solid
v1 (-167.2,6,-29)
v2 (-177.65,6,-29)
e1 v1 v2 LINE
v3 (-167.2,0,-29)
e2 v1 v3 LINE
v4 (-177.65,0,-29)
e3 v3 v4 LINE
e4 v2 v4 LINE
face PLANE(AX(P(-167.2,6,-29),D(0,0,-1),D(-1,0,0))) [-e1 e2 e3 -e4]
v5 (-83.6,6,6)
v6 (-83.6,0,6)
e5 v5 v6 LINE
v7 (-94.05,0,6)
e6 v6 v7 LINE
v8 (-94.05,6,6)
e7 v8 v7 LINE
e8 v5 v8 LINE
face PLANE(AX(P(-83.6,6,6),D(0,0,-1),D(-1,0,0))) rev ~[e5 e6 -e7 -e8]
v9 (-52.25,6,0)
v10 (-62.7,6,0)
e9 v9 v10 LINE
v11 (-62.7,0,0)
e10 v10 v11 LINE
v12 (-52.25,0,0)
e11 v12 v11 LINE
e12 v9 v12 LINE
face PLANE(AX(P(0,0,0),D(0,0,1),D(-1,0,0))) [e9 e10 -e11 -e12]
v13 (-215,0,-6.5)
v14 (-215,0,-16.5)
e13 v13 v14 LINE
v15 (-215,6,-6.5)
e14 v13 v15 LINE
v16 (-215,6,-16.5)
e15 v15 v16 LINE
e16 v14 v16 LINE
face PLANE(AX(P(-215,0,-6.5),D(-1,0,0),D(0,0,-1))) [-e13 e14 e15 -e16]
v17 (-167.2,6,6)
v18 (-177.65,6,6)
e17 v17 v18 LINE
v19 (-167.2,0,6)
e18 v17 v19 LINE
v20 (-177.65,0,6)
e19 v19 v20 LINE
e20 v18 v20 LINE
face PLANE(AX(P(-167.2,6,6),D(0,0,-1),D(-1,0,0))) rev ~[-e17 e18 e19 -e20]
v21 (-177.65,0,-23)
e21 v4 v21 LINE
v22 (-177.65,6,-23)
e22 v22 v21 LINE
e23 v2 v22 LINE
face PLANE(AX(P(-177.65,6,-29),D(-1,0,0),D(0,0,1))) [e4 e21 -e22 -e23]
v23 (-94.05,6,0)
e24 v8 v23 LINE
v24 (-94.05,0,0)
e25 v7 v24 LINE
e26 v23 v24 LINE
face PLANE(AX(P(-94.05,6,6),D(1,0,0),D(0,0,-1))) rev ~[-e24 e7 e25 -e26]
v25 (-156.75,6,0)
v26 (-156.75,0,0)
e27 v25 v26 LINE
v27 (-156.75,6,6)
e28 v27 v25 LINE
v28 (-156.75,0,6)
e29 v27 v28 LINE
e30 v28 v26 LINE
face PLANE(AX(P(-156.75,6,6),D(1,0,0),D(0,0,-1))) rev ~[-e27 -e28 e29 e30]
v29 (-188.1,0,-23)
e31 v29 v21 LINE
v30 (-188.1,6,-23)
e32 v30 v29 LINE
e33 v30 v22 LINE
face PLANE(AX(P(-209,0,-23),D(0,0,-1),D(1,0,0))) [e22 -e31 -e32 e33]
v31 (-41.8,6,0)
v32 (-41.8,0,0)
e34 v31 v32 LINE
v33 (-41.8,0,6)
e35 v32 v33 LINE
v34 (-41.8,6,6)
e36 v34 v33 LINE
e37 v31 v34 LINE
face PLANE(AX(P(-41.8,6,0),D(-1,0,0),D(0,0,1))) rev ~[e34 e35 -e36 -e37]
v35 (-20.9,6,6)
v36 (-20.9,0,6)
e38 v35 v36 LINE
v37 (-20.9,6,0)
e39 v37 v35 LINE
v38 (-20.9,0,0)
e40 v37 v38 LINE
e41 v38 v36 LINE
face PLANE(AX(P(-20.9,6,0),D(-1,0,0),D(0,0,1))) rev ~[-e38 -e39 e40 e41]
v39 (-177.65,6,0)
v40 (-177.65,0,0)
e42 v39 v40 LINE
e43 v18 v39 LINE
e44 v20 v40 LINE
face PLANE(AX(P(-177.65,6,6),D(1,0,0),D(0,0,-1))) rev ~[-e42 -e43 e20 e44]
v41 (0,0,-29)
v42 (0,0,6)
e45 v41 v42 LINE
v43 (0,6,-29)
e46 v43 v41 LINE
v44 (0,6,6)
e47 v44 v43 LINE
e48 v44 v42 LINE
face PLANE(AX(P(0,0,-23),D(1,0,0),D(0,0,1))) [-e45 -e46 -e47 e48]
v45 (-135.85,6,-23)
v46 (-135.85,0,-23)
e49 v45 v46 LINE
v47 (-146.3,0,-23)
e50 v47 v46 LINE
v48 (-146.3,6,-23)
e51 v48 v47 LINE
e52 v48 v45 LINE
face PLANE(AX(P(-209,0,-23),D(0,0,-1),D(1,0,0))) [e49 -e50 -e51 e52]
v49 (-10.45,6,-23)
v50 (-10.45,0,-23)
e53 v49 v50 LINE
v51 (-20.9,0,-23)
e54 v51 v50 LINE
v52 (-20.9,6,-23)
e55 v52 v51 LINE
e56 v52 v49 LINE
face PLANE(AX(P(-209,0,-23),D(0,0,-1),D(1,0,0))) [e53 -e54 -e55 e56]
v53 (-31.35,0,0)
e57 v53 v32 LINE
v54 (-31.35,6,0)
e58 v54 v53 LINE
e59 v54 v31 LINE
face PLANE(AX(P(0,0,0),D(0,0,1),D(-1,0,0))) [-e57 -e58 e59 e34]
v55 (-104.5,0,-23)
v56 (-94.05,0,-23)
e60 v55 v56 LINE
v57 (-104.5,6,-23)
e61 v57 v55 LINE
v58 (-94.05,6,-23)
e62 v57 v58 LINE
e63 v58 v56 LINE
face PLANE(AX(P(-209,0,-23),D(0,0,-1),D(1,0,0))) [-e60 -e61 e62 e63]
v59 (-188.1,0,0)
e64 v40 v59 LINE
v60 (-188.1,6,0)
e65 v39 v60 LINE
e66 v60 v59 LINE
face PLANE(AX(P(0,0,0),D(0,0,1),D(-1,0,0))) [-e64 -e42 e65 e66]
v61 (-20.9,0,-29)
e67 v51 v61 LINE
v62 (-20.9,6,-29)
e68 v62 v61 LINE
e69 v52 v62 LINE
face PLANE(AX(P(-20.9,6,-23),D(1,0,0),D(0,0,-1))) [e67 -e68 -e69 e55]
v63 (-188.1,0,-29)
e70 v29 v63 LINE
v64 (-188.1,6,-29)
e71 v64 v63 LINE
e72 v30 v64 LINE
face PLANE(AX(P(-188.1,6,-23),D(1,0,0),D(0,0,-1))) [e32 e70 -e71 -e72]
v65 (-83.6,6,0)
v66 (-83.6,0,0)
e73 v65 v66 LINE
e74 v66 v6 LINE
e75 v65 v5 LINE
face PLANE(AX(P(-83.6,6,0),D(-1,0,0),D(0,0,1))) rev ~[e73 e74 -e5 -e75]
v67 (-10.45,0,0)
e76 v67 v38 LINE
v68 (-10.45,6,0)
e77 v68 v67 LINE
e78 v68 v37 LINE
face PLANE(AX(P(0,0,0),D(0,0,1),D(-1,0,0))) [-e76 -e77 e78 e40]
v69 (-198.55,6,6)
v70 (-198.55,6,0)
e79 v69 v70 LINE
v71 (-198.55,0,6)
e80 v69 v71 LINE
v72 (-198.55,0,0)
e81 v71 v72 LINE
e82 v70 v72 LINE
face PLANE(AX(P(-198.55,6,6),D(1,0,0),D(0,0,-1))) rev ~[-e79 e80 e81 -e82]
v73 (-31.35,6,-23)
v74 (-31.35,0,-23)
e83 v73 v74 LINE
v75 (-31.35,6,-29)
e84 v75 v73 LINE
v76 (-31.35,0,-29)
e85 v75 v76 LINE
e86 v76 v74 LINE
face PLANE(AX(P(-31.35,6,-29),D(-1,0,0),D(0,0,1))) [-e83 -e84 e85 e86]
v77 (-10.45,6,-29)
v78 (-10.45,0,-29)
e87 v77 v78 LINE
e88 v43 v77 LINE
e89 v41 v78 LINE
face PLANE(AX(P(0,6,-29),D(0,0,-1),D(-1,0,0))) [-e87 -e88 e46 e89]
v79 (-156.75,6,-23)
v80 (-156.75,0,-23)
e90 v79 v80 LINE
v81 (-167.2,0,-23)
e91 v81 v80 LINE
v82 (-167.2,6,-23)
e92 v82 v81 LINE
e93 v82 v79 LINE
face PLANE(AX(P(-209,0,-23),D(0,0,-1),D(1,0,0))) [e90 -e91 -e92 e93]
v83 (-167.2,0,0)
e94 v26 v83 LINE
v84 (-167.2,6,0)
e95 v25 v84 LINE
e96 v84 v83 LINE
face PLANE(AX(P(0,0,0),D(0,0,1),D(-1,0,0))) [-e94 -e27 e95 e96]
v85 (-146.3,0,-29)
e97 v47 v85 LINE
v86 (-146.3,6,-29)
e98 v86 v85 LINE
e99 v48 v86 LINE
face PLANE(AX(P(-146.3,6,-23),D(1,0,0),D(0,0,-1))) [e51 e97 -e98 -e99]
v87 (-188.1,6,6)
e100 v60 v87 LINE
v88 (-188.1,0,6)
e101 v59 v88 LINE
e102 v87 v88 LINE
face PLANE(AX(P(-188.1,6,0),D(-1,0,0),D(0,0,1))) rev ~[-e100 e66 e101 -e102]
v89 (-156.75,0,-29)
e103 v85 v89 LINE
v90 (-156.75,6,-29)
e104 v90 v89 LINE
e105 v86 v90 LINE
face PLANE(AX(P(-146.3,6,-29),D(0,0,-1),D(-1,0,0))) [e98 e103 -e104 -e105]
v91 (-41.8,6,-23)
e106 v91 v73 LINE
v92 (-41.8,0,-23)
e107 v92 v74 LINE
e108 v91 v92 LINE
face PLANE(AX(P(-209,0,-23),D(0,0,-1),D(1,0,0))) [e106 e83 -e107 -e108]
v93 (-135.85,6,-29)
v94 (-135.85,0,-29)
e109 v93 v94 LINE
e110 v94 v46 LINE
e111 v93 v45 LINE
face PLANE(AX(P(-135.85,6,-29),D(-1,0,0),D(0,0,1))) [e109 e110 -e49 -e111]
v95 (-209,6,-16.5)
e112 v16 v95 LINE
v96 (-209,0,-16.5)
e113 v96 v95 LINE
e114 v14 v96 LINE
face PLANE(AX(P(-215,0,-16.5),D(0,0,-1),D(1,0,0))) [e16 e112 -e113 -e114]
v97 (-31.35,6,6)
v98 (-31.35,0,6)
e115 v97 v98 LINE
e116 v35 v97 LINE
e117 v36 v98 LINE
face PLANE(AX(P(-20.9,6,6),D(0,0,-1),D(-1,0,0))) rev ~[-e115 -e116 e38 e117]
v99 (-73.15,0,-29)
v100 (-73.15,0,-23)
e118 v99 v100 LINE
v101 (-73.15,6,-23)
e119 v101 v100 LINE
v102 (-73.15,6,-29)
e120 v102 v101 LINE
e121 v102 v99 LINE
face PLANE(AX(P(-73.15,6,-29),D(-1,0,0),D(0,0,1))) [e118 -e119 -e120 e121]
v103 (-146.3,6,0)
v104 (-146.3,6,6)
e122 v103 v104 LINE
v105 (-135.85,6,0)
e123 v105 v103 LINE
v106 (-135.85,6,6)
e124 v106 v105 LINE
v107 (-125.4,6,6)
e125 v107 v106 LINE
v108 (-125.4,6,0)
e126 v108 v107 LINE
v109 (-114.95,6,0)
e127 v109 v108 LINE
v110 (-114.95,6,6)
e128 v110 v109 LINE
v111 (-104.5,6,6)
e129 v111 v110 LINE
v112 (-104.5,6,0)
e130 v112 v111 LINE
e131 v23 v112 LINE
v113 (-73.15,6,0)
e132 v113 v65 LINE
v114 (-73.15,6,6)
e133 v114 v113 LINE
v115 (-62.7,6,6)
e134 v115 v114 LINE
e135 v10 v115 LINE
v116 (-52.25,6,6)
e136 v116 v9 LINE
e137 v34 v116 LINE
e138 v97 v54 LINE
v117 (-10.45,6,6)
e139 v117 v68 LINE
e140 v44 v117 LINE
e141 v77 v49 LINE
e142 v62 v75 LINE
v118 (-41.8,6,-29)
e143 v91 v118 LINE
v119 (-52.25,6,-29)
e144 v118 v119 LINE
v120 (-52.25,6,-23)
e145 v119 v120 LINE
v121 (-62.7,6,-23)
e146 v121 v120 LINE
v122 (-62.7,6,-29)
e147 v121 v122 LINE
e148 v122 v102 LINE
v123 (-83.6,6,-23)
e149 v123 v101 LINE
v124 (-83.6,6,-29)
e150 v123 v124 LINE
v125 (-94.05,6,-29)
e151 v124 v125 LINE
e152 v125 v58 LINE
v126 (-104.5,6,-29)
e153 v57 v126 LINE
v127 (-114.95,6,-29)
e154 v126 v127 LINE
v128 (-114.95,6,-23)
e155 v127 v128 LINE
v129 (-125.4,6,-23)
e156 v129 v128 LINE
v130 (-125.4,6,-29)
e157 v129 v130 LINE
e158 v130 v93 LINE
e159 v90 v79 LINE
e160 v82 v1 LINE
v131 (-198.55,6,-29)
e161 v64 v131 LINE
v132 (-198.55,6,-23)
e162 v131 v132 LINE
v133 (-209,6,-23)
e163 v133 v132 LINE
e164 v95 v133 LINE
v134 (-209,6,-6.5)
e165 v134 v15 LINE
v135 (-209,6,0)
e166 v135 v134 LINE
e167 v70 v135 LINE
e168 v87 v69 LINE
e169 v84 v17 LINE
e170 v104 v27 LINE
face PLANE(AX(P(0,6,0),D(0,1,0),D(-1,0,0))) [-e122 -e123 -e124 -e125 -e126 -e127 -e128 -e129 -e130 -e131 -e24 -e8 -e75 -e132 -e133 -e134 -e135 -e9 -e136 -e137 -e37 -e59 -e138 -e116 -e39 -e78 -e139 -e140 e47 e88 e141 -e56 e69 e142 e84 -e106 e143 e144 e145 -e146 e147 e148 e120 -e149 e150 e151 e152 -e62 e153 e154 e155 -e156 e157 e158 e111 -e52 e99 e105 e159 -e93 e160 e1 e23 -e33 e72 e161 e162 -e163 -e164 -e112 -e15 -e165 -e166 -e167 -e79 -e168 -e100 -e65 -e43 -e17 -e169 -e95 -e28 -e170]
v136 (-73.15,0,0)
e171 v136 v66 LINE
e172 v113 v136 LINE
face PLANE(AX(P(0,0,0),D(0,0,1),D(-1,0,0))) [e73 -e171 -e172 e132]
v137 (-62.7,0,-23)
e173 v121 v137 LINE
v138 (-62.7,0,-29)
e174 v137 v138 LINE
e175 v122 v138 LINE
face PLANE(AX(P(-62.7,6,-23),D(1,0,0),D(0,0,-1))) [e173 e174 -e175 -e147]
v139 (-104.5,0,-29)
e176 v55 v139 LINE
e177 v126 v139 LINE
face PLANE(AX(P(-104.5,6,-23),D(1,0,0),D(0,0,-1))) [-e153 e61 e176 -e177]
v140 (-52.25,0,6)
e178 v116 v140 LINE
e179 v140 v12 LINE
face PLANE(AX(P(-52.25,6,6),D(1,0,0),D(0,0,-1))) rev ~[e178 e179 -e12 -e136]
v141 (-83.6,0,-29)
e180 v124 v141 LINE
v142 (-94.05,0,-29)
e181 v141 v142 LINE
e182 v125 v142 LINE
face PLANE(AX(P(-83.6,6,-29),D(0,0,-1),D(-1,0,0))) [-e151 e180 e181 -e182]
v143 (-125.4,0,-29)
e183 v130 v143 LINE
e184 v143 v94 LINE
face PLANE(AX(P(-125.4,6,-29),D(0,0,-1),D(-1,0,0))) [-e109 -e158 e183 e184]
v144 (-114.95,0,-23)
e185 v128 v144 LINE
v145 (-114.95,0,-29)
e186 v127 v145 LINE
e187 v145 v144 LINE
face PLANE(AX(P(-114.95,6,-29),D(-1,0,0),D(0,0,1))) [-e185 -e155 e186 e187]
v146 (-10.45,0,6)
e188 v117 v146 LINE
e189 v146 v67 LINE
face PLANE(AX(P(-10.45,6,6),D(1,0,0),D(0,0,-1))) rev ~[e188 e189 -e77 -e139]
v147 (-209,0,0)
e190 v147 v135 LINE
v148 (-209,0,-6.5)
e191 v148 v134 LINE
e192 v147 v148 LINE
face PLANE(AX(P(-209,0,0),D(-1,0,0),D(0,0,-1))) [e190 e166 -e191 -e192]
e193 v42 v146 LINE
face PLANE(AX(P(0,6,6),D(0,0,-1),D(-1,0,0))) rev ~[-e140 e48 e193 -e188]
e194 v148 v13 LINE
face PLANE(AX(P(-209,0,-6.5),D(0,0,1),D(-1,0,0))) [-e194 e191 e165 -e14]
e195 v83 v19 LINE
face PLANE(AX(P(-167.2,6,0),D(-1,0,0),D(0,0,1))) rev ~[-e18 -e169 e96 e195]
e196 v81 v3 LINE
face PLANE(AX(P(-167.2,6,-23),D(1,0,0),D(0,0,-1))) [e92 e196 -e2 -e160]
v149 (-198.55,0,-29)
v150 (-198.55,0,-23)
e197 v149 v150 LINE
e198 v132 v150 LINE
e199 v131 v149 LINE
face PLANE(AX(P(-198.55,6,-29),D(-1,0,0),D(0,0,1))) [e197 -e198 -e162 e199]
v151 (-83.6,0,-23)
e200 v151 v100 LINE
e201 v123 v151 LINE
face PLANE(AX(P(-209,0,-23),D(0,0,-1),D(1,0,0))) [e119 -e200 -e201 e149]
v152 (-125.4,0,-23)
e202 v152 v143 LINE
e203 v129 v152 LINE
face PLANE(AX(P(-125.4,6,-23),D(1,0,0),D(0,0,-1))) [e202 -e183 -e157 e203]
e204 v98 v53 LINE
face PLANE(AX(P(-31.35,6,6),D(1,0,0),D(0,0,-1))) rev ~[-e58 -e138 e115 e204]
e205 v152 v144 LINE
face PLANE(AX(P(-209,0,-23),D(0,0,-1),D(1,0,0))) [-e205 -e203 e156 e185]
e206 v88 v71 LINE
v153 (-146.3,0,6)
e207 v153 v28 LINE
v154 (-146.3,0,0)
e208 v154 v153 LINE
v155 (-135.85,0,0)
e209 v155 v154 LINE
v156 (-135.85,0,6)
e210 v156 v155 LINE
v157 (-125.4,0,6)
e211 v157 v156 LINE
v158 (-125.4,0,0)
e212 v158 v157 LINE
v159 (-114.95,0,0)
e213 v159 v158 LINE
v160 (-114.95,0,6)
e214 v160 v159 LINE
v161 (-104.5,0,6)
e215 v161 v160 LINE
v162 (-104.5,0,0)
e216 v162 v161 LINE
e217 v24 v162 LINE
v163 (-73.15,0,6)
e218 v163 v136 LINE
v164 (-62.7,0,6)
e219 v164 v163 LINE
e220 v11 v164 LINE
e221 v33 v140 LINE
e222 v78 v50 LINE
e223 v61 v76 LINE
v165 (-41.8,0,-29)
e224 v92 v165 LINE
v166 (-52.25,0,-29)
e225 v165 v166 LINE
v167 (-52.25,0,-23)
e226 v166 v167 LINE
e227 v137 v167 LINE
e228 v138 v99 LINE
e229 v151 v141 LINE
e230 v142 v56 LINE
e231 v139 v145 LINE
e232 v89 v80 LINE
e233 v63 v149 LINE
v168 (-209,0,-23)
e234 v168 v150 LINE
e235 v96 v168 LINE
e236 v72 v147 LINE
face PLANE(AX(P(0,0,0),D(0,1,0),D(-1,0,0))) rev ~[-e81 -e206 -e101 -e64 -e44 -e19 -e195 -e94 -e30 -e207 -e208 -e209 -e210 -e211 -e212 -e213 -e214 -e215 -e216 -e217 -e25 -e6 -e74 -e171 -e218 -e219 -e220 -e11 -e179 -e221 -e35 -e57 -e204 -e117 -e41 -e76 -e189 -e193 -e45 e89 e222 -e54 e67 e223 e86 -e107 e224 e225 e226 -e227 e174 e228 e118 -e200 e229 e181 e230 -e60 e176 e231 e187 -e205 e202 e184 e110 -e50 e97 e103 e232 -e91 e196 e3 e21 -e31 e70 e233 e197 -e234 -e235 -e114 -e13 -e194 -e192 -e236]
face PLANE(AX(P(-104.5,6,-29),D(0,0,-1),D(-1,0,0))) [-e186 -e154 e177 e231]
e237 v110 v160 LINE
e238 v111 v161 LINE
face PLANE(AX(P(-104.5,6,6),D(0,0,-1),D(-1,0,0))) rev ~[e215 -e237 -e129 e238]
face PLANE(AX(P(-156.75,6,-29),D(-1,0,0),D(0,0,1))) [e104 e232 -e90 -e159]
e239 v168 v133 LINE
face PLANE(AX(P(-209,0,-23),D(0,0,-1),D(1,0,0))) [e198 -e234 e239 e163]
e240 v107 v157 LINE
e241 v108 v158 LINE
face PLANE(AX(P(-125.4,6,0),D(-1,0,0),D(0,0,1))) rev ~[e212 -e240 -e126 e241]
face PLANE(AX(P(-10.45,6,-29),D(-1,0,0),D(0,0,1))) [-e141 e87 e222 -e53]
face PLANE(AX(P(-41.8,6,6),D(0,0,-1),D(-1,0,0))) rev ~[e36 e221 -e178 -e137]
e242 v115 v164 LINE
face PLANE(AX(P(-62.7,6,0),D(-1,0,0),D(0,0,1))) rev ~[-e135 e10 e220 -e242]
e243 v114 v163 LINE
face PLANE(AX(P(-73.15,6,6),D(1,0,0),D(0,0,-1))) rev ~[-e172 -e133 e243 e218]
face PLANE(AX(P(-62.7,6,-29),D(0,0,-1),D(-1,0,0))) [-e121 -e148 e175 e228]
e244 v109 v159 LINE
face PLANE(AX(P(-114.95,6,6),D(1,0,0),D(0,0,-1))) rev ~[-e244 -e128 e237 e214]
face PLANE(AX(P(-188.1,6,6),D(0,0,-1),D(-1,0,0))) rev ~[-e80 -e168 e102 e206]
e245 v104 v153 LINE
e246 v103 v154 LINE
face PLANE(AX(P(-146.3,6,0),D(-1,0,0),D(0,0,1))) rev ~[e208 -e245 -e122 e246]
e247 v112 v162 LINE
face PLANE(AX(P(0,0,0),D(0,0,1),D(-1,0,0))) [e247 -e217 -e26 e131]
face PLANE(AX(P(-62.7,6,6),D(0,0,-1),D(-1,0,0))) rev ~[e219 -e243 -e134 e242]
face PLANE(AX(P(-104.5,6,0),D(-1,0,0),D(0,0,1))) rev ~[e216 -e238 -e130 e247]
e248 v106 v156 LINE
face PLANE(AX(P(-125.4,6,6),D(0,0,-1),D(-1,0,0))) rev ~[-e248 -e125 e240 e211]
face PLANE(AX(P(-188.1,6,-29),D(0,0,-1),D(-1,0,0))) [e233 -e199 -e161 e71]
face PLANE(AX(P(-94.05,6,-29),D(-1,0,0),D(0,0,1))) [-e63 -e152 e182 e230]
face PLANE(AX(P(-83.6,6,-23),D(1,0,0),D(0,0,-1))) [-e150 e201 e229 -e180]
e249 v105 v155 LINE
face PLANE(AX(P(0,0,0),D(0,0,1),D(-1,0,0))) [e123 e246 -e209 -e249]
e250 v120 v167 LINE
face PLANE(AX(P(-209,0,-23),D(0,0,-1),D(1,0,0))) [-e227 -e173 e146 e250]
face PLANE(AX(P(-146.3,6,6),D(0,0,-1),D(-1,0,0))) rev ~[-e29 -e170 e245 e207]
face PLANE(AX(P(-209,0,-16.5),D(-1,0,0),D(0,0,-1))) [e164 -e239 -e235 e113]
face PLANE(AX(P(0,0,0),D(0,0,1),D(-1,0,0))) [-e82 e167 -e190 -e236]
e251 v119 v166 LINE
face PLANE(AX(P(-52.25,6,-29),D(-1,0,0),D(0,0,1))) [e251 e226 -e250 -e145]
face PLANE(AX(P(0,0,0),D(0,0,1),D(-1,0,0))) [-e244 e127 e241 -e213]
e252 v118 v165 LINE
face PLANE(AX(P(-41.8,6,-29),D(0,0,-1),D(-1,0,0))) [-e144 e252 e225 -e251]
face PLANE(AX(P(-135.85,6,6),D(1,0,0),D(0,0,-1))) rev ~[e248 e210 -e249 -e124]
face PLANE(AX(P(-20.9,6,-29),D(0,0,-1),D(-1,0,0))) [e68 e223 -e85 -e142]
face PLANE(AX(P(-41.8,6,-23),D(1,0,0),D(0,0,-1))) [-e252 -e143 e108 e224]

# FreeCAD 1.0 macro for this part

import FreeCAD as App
import Part
import Sketcher

V = App.Vector
Q = App.Units.Quantity

doc = App.newDocument("Part")
body = doc.addObject("PartDesign::Body", "Body")

# Sketch on XZ plane
sketch1 = doc.addObject("Sketcher::SketchObject", "Sketch")
body.addObject(sketch1)
sketch1.AttachmentSupport = (doc.XZ_Plane, [""])
sketch1.MapMode = "FlatFace"
sketch1.addGeometry(Part.LineSegment(V(-209, 0, 0), V(0, 0, 0)), False)
sketch1.addGeometry(Part.LineSegment(V(0, 0, 0), V(0, -23, 0)), False)
sketch1.addGeometry(Part.LineSegment(V(0, -23, 0), V(-209, -23, 0)), False)
sketch1.addGeometry(Part.LineSegment(V(-209, -23, 0), V(-209, -16.5, 0)), False)
sketch1.addGeometry(Part.LineSegment(V(-209, -16.5, 0), V(-215, -16.5, 0)), False)
sketch1.addGeometry(Part.LineSegment(V(-215, -16.5, 0), V(-215, -6.5, 0)), False)
sketch1.addGeometry(Part.LineSegment(V(-215, -6.5, 0), V(-209, -6.5, 0)), False)
sketch1.addGeometry(Part.LineSegment(V(-209, -6.5, 0), V(-209, 0, 0)), False)
sketch1.addConstraint(Sketcher.Constraint("Coincident", 0, 2, 1, 1))
sketch1.addConstraint(Sketcher.Constraint("Coincident", 1, 2, 2, 1))
sketch1.addConstraint(Sketcher.Constraint("Coincident", 2, 2, 3, 1))
sketch1.addConstraint(Sketcher.Constraint("Coincident", 3, 2, 4, 1))
sketch1.addConstraint(Sketcher.Constraint("Coincident", 4, 2, 5, 1))
sketch1.addConstraint(Sketcher.Constraint("Coincident", 5, 2, 6, 1))
sketch1.addConstraint(Sketcher.Constraint("Coincident", 6, 2, 7, 1))
sketch1.addConstraint(Sketcher.Constraint("Coincident", 7, 2, 0, 1))
sketch1.addConstraint(Sketcher.Constraint("Horizontal", 0))
sketch1.addConstraint(Sketcher.Constraint("Vertical", 1))
sketch1.addConstraint(Sketcher.Constraint("Horizontal", 2))
sketch1.addConstraint(Sketcher.Constraint("Vertical", 3))
sketch1.addConstraint(Sketcher.Constraint("Horizontal", 4))
sketch1.addConstraint(Sketcher.Constraint("Vertical", 5))
sketch1.addConstraint(Sketcher.Constraint("Horizontal", 6))
sketch1.addConstraint(Sketcher.Constraint("Vertical", 7))
sketch1.addConstraint(Sketcher.Constraint("Coincident", 0, 2, -1, 1))
sketch1.addConstraint(Sketcher.Constraint("Vertical", 3, 2, 6, 2))
sketch1.addConstraint(Sketcher.Constraint("Equal", 3, 7))
sketch1.addConstraint(Sketcher.Constraint("DistanceX", 0, 1, 0, 2, Q("209 mm")))
sketch1.addConstraint(Sketcher.Constraint("DistanceX", 4, 2, 4, 1, Q("6 mm")))
sketch1.addConstraint(Sketcher.Constraint("DistanceY", 1, 2, 1, 1, Q("23 mm")))
sketch1.addConstraint(Sketcher.Constraint("DistanceY", 5, 1, 5, 2, Q("10 mm")))
pad1 = doc.addObject("PartDesign::Pad", "Pad")
body.addObject(pad1)
pad1.Profile = sketch1
pad1.Length = 6
pad1.Reversed = True

# Sketch on XZ plane
sketch2 = doc.addObject("Sketcher::SketchObject", "Sketch001")
body.addObject(sketch2)
sketch2.AttachmentSupport = (doc.XZ_Plane, [""])
sketch2.MapMode = "FlatFace"
sketch2.AttachmentOffset = App.Placement(V(0, 0, -6), App.Rotation())
sketch2.addGeometry(Part.LineSegment(V(-188.1, 0, 0), V(-198.55, 0, 0)), False)
sketch2.addGeometry(Part.LineSegment(V(-198.55, 0, 0), V(-198.55, 6, 0)), False)
sketch2.addGeometry(Part.LineSegment(V(-198.55, 6, 0), V(-188.1, 6, 0)), False)
sketch2.addGeometry(Part.LineSegment(V(-188.1, 6, 0), V(-188.1, 0, 0)), False)
sketch2.addGeometry(Part.LineSegment(V(-198.55, -23, 0), V(-188.1, -23, 0)), False)
sketch2.addGeometry(Part.LineSegment(V(-188.1, -23, 0), V(-188.1, -29, 0)), False)
sketch2.addGeometry(Part.LineSegment(V(-188.1, -29, 0), V(-198.55, -29, 0)), False)
sketch2.addGeometry(Part.LineSegment(V(-198.55, -29, 0), V(-198.55, -23, 0)), False)
sketch2.addConstraint(Sketcher.Constraint("Coincident", 0, 2, 1, 1))
sketch2.addConstraint(Sketcher.Constraint("Coincident", 1, 2, 2, 1))
sketch2.addConstraint(Sketcher.Constraint("Coincident", 2, 2, 3, 1))
sketch2.addConstraint(Sketcher.Constraint("Coincident", 3, 2, 0, 1))
sketch2.addConstraint(Sketcher.Constraint("Coincident", 4, 2, 5, 1))
sketch2.addConstraint(Sketcher.Constraint("Coincident", 5, 2, 6, 1))
sketch2.addConstraint(Sketcher.Constraint("Coincident", 6, 2, 7, 1))
sketch2.addConstraint(Sketcher.Constraint("Coincident", 7, 2, 4, 1))
sketch2.addConstraint(Sketcher.Constraint("Horizontal", 0))
sketch2.addConstraint(Sketcher.Constraint("Vertical", 1))
sketch2.addConstraint(Sketcher.Constraint("Horizontal", 2))
sketch2.addConstraint(Sketcher.Constraint("Vertical", 3))
sketch2.addConstraint(Sketcher.Constraint("Horizontal", 4))
sketch2.addConstraint(Sketcher.Constraint("Vertical", 5))
sketch2.addConstraint(Sketcher.Constraint("Horizontal", 6))
sketch2.addConstraint(Sketcher.Constraint("Vertical", 7))
sketch2.addConstraint(Sketcher.Constraint("PointOnObject", 0, 2, -1))
sketch2.addConstraint(Sketcher.Constraint("Vertical", 3, 2, 4, 2))
sketch2.addConstraint(Sketcher.Constraint("Vertical", 1, 2, 6, 2))
sketch2.addConstraint(Sketcher.Constraint("Equal", 3, 5))
sketch2.addConstraint(Sketcher.Constraint("DistanceY", 1, 1, 1, 2, Q("6 mm")))
sketch2.addConstraint(Sketcher.Constraint("DistanceX", 0, 2, 0, 1, Q("10.45 mm")))
sketch2.addConstraint(Sketcher.Constraint("DistanceY", 4, 2, -1, 1, Q("23 mm")))
sketch2.addConstraint(Sketcher.Constraint("DistanceX", 2, 2, -1, 1, Q("188.1 mm")))
pad2 = doc.addObject("PartDesign::Pad", "Pad001")
body.addObject(pad2)
pad2.Profile = sketch2
pad2.Length = 6
doc.recompute()

linearpattern = doc.addObject("PartDesign::LinearPattern", "LinearPattern")
body.addObject(linearpattern)
linearpattern.Originals = [pad2]
linearpattern.Direction = (doc.X_Axis, [""])
linearpattern.Mode = "offset"
linearpattern.Offset = 20.9
linearpattern.Occurrences = 10
body.Tip = linearpattern

doc.recompute()
